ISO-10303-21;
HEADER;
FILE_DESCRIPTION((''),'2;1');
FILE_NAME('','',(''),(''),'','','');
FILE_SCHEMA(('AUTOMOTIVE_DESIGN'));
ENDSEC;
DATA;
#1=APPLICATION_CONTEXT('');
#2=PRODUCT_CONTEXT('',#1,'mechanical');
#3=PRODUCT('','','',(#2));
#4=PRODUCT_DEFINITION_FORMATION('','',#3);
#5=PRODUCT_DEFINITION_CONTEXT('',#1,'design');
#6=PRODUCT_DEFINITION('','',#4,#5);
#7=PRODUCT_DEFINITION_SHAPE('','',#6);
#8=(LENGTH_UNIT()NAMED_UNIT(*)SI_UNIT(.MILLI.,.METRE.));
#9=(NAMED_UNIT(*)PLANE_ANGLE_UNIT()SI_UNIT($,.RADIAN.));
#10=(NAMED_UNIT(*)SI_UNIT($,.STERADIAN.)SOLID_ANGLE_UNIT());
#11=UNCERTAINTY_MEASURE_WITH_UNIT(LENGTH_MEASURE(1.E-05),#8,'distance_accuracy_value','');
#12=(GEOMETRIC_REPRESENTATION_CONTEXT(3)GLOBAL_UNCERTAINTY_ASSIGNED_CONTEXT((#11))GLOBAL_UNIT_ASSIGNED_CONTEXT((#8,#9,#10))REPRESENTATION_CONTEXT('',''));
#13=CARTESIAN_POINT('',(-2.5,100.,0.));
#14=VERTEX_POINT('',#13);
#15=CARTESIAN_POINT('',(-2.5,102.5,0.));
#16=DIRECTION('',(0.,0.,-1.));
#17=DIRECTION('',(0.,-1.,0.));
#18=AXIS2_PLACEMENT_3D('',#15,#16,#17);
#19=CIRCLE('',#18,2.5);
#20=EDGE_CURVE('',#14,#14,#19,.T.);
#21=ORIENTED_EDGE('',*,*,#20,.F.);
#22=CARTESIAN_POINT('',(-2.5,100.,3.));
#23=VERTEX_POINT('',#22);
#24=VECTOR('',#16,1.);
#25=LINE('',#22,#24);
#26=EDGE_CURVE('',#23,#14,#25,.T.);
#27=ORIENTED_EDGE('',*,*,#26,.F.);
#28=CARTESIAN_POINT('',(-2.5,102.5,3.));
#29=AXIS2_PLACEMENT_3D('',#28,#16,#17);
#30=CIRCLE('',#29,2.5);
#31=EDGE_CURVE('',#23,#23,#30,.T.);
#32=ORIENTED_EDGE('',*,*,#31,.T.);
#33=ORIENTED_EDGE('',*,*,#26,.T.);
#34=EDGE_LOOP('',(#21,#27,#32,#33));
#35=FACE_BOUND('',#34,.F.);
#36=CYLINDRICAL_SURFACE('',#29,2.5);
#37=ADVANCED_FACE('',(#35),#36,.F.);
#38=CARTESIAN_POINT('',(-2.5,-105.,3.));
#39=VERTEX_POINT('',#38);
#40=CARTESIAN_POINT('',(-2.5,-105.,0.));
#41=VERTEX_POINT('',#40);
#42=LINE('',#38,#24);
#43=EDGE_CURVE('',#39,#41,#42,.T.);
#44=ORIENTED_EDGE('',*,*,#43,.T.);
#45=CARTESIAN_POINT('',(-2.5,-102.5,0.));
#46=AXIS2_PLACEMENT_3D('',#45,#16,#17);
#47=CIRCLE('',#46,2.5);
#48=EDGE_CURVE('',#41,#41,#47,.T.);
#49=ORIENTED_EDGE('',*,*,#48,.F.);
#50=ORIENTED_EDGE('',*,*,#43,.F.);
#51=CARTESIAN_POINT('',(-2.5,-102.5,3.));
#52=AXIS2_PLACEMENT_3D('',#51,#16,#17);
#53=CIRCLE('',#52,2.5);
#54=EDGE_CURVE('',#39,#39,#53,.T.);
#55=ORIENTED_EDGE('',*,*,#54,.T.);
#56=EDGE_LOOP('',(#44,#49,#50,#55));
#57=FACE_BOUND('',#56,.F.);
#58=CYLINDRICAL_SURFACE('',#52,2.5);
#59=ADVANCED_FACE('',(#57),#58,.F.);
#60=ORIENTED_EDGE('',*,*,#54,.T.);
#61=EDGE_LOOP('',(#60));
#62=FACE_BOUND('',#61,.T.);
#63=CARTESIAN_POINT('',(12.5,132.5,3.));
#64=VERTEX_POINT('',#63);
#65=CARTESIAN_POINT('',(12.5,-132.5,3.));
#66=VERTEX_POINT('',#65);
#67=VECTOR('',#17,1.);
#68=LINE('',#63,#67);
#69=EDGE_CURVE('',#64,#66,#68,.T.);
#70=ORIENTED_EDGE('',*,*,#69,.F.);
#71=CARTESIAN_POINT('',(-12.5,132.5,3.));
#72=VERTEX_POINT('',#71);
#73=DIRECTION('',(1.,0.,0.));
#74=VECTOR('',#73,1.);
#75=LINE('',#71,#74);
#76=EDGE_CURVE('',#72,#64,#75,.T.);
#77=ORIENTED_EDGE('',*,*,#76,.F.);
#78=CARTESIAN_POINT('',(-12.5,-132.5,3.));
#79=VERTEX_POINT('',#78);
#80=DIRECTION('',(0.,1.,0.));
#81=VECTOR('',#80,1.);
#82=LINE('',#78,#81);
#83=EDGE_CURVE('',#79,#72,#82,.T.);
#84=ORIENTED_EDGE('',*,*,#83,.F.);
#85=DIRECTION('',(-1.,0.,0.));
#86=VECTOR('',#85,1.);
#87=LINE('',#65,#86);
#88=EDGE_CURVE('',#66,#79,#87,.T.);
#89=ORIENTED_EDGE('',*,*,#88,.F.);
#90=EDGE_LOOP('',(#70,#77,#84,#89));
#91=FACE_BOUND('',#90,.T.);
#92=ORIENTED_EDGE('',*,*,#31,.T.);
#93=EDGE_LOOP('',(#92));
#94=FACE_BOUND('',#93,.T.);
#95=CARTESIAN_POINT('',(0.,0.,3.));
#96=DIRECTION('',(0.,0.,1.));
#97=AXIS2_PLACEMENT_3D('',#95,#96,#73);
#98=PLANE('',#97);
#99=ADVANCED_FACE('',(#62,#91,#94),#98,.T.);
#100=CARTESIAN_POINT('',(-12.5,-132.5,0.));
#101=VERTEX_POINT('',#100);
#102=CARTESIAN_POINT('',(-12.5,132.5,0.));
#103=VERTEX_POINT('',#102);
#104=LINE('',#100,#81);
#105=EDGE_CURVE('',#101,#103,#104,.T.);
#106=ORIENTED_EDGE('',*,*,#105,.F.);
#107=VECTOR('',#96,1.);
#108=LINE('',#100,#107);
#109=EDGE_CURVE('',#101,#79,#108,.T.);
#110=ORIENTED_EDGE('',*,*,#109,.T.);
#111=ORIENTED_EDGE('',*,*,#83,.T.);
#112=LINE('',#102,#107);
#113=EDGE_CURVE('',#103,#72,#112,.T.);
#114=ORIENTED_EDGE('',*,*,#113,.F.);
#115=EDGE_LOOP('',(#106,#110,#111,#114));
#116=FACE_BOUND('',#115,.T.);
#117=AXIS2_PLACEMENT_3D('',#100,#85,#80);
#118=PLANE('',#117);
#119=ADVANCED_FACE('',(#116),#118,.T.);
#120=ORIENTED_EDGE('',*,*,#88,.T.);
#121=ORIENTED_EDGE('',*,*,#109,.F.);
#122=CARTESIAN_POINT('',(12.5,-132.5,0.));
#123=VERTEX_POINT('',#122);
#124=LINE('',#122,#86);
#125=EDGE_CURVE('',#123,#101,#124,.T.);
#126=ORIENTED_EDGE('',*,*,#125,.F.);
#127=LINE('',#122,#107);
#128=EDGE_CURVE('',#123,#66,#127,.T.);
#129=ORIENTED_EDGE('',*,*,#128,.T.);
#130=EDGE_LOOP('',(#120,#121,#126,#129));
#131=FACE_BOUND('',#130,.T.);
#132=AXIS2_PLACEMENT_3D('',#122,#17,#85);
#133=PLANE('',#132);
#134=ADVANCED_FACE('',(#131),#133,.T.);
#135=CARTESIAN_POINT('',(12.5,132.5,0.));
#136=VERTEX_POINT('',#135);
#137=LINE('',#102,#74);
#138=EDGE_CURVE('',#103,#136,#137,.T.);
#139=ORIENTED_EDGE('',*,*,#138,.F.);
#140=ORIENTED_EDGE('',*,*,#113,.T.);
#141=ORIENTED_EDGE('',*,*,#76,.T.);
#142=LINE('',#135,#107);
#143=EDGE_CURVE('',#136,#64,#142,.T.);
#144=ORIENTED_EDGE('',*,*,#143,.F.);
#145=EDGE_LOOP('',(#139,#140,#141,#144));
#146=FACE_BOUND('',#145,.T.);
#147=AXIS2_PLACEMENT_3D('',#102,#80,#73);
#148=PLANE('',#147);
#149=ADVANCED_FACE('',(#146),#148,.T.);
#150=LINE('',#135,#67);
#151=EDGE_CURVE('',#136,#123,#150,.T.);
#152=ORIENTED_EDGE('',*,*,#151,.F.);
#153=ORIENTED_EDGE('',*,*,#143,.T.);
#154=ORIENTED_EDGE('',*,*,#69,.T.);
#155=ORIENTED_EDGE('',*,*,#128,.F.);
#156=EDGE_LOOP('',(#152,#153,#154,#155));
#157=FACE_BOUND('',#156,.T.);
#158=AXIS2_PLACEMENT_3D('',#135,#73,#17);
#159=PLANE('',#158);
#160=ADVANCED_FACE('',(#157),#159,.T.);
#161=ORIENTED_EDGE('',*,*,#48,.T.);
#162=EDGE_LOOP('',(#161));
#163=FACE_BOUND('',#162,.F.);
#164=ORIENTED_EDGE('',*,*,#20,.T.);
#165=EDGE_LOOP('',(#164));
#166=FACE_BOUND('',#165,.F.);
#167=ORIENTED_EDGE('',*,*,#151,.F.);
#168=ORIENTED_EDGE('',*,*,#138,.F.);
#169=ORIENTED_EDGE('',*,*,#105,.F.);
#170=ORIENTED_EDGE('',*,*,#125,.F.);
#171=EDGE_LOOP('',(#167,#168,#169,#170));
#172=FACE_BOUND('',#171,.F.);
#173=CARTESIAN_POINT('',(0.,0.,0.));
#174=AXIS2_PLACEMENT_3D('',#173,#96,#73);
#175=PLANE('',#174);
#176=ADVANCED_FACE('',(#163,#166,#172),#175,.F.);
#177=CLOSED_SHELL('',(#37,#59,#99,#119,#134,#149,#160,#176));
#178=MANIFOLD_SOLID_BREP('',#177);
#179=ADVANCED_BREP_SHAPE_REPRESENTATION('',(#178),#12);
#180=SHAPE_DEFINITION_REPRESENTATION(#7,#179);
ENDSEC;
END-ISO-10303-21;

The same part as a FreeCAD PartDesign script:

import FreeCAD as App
import Part
import Sketcher

V = App.Vector
Q = App.Units.Quantity

doc = App.newDocument("Part")
params = doc.addObject("Spreadsheet::Sheet", "Params")
for row, (alias, value) in enumerate([
    ("sketch1_width", "25 mm"),
    ("sketch1_height", "265 mm"),
    ("pad1_length", "3 mm"),
    ("sketch2_diameter", "5 mm"),
    ("hole_diameter", "5 mm"),
    ("hole_depth", "65 mm"),
    ("sketch3_diameter", "5 mm"),
    ("hole2_diameter", "5 mm"),
    ("hole2_depth", "65 mm"),
], start=1):
    params.set(f"A{row}", alias)
    params.set(f"B{row}", "=" + value)
    params.setAlias(f"B{row}", alias)

body = doc.addObject("PartDesign::Body", "Body")

# Sketch on XY plane
sketch1 = doc.addObject("Sketcher::SketchObject", "Sketch")
body.addObject(sketch1)
sketch1.AttachmentSupport = (doc.XY_Plane, [""])
sketch1.MapMode = "FlatFace"
sketch1.addGeometry([
    Part.LineSegment(V(-12.5, -132.5, 0), V(12.5, -132.5, 0)),
    Part.LineSegment(V(12.5, -132.5, 0), V(12.5, 132.5, 0)),
    Part.LineSegment(V(12.5, 132.5, 0), V(-12.5, 132.5, 0)),
    Part.LineSegment(V(-12.5, 132.5, 0), V(-12.5, -132.5, 0)),
], False)
sketch1.addConstraint([
    Sketcher.Constraint("Coincident", 0, 2, 1, 1),
    Sketcher.Constraint("Coincident", 1, 2, 2, 1),
    Sketcher.Constraint("Coincident", 2, 2, 3, 1),
    Sketcher.Constraint("Coincident", 3, 2, 0, 1),
    Sketcher.Constraint("Horizontal", 0),
    Sketcher.Constraint("Vertical", 1),
    Sketcher.Constraint("Horizontal", 2),
    Sketcher.Constraint("Vertical", 3),
    Sketcher.Constraint("Symmetric", 0, 2, 2, 2, -1, 1),
    Sketcher.Constraint("DistanceX", 0, 1, 0, 2, Q("25 mm")),
    Sketcher.Constraint("DistanceY", 1, 1, 1, 2, Q("265 mm")),
])
sketch1.setExpression("Constraints[9]", "Params.sketch1_width")
sketch1.setExpression("Constraints[10]", "Params.sketch1_height")
pad1 = doc.addObject("PartDesign::Pad", "Pad")
body.addObject(pad1)
pad1.Profile = sketch1
pad1.setExpression("Length", "Params.pad1_length")

# Sketch on XY plane
sketch2 = doc.addObject("Sketcher::SketchObject", "Sketch001")
body.addObject(sketch2)
sketch2.AttachmentSupport = (doc.XY_Plane, [""])
sketch2.MapMode = "FlatFace"
sketch2.AttachmentOffset = App.Placement(V(0, 0, 3), App.Rotation())
sketch2.addGeometry(Part.Circle(V(-2.5, 102.5, 0), V(0, 0, 1), 2.5), False)
sketch2.addConstraint([
    Sketcher.Constraint("Diameter", 0, Q("5 mm")),
    Sketcher.Constraint("DistanceX", 0, 3, -1, 1, Q("2.5 mm")),
    Sketcher.Constraint("DistanceY", -1, 1, 0, 3, Q("102.5 mm")),
])
sketch2.setExpression("Constraints[0]", "Params.sketch2_diameter")
doc.recompute()
hole = doc.addObject("PartDesign::Hole", "Hole")
body.addObject(hole)
hole.Profile = sketch2
hole.ThreadType = "None"
hole.setExpression("Diameter", "Params.hole_diameter")
hole.DepthType = "Dimension"
hole.setExpression("Depth", "Params.hole_depth")
hole.DrillPoint = "Angled"
hole.DrillPointAngle = 118

# Sketch on XY plane
sketch3 = doc.addObject("Sketcher::SketchObject", "Sketch002")
body.addObject(sketch3)
sketch3.AttachmentSupport = (doc.XY_Plane, [""])
sketch3.MapMode = "FlatFace"
sketch3.AttachmentOffset = App.Placement(V(0, 0, 3), App.Rotation())
sketch3.addGeometry(Part.Circle(V(-2.5, -102.5, 0), V(0, 0, 1), 2.5), False)
sketch3.addConstraint([
    Sketcher.Constraint("Diameter", 0, Q("5 mm")),
    Sketcher.Constraint("DistanceX", 0, 3, -1, 1, Q("2.5 mm")),
    Sketcher.Constraint("DistanceY", 0, 3, -1, 1, Q("102.5 mm")),
])
sketch3.setExpression("Constraints[0]", "Params.sketch3_diameter")
doc.recompute()
hole2 = doc.addObject("PartDesign::Hole", "Hole001")
body.addObject(hole2)
hole2.Profile = sketch3
hole2.ThreadType = "None"
hole2.setExpression("Diameter", "Params.hole2_diameter")
hole2.DepthType = "Dimension"
hole2.setExpression("Depth", "Params.hole2_depth")
hole2.DrillPoint = "Angled"
hole2.DrillPointAngle = 118

doc.recompute()
